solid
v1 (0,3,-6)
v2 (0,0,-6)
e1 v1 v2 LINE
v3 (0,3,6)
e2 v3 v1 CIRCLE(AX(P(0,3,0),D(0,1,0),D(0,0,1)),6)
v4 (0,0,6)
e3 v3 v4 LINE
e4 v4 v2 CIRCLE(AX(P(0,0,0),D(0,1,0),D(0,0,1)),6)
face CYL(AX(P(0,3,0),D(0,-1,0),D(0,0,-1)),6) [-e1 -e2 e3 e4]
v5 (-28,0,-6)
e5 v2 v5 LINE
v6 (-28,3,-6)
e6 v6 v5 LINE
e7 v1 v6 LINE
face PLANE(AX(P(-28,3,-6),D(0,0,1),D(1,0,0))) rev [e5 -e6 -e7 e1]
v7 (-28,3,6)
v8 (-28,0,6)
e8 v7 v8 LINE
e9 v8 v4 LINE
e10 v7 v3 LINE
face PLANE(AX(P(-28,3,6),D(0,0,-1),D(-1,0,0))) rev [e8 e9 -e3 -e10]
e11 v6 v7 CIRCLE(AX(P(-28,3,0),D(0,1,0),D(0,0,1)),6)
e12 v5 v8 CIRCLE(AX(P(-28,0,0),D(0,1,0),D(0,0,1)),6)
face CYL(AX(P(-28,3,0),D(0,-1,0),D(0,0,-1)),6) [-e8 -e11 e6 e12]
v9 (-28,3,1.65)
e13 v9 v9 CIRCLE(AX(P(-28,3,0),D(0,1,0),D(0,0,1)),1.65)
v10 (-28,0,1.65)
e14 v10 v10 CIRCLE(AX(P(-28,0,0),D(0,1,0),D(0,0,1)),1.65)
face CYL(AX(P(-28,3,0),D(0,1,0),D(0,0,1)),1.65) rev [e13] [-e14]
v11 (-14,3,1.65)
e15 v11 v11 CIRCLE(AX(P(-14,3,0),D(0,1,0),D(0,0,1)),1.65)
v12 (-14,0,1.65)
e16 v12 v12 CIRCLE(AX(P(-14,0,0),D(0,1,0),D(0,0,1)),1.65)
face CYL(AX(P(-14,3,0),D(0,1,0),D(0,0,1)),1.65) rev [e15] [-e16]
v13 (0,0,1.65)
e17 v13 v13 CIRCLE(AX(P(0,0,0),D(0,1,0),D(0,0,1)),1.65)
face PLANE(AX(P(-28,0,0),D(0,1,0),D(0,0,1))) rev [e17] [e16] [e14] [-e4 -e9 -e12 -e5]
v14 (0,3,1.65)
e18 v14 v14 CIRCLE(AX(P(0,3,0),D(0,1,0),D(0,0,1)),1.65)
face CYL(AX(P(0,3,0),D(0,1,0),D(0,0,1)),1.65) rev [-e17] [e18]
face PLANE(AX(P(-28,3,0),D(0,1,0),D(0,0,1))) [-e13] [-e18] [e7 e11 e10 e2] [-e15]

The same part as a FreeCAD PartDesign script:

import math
import FreeCAD as App
import Part
import Sketcher

doc = App.newDocument("Part")
params = doc.addObject("Spreadsheet::Sheet", "Params")
for row, (alias, value) in enumerate([
    ("sketch1_radius", "6 mm"),
    ("sketch1_width", "28 mm"),
    ("pad1_length", "3 mm"),
    ("sketch2_diameter", "3.3 mm"),
    ("hole_diameter", "3.3 mm"),
    ("hole_depth", "10.1 mm"),
], start=1):
    params.set(f"A{row}", alias)
    params.set(f"B{row}", "=" + value)
    params.setAlias(f"B{row}", alias)

body = doc.addObject("PartDesign::Body", "Body")

sketch1 = body.newObject("Sketcher::SketchObject", "Sketch")
sketch1.AttachmentSupport = (doc.getObject("XZ_Plane"), [""])
sketch1.MapMode = "FlatFace"
sketch1.addGeometry(Part.LineSegment(App.Vector(0, -6, 0), App.Vector(-28, -6, 0)), False)
sketch1.addGeometry(Part.ArcOfCircle(Part.Circle(App.Vector(-28, 0, 0), App.Vector(0, 0, 1), 6), math.radians(90), math.radians(270)), False)
sketch1.addGeometry(Part.LineSegment(App.Vector(-28, 6, 0), App.Vector(0, 6, 0)), False)
sketch1.addGeometry(Part.ArcOfCircle(Part.Circle(App.Vector(0, 0, 0), App.Vector(0, 0, 1), 6), math.radians(-90), math.radians(90)), False)
sketch1.addConstraint(Sketcher.Constraint("Tangent", 0, 2, 1, 2))
sketch1.addConstraint(Sketcher.Constraint("Tangent", 1, 1, 2, 1))
sketch1.addConstraint(Sketcher.Constraint("Tangent", 2, 2, 3, 2))
sketch1.addConstraint(Sketcher.Constraint("Tangent", 3, 1, 0, 1))
sketch1.addConstraint(Sketcher.Constraint("Horizontal", 0))
sketch1.addConstraint(Sketcher.Constraint("Horizontal", 2))
sketch1.addConstraint(Sketcher.Constraint("Coincident", 3, 3, -1, 1))
sketch1.addConstraint(Sketcher.Constraint("Radius", 1, 6.0))
sketch1.addConstraint(Sketcher.Constraint("DistanceX", 0, 2, 0, 1, 28.0))
sketch1.setExpression("Constraints[7]", "Params.sketch1_radius")
sketch1.setExpression("Constraints[8]", "Params.sketch1_width")
pad1 = body.newObject("PartDesign::Pad", "Pad")
pad1.Profile = sketch1
pad1.setExpression("Length", "Params.pad1_length")
pad1.Reversed = True

sketch2 = body.newObject("Sketcher::SketchObject", "Sketch001")
sketch2.AttachmentSupport = (doc.getObject("XZ_Plane"), [""])
sketch2.MapMode = "FlatFace"
sketch2.AttachmentOffset = App.Placement(App.Vector(0, 0, -3), App.Rotation())
sketch2.addGeometry(Part.Circle(App.Vector(0, 0, 0), App.Vector(0, 0, 1), 1.6), False)
sketch2.addGeometry(Part.Circle(App.Vector(-14, 0, 0), App.Vector(0, 0, 1), 1.6), False)
sketch2.addGeometry(Part.Circle(App.Vector(-28, 0, 0), App.Vector(0, 0, 1), 1.6), False)
sketch2.addConstraint(Sketcher.Constraint("Coincident", 0, 3, -1, 1))
sketch2.addConstraint(Sketcher.Constraint("Equal", 0, 1))
sketch2.addConstraint(Sketcher.Constraint("Equal", 1, 2))
sketch2.addConstraint(Sketcher.Constraint("PointOnObject", 1, 3, -1))
sketch2.addConstraint(Sketcher.Constraint("PointOnObject", 2, 3, -1))
sketch2.addConstraint(Sketcher.Constraint("Diameter", 0, 3.3))
sketch2.addConstraint(Sketcher.Constraint("DistanceX", 1, 3, -1, 1, 14.0))
sketch2.addConstraint(Sketcher.Constraint("DistanceX", 2, 3, -1, 1, 28.0))
sketch2.setExpression("Constraints[5]", "Params.sketch2_diameter")
doc.recompute()
hole = body.newObject("PartDesign::Hole", "Hole")
hole.Profile = sketch2
hole.ThreadType = "None"
hole.setExpression("Diameter", "Params.hole_diameter")
hole.DepthType = "Dimension"
hole.setExpression("Depth", "Params.hole_depth")
hole.DrillPoint = "Angled"
hole.DrillPointAngle = 118
hole.Reversed = True

doc.recompute()
